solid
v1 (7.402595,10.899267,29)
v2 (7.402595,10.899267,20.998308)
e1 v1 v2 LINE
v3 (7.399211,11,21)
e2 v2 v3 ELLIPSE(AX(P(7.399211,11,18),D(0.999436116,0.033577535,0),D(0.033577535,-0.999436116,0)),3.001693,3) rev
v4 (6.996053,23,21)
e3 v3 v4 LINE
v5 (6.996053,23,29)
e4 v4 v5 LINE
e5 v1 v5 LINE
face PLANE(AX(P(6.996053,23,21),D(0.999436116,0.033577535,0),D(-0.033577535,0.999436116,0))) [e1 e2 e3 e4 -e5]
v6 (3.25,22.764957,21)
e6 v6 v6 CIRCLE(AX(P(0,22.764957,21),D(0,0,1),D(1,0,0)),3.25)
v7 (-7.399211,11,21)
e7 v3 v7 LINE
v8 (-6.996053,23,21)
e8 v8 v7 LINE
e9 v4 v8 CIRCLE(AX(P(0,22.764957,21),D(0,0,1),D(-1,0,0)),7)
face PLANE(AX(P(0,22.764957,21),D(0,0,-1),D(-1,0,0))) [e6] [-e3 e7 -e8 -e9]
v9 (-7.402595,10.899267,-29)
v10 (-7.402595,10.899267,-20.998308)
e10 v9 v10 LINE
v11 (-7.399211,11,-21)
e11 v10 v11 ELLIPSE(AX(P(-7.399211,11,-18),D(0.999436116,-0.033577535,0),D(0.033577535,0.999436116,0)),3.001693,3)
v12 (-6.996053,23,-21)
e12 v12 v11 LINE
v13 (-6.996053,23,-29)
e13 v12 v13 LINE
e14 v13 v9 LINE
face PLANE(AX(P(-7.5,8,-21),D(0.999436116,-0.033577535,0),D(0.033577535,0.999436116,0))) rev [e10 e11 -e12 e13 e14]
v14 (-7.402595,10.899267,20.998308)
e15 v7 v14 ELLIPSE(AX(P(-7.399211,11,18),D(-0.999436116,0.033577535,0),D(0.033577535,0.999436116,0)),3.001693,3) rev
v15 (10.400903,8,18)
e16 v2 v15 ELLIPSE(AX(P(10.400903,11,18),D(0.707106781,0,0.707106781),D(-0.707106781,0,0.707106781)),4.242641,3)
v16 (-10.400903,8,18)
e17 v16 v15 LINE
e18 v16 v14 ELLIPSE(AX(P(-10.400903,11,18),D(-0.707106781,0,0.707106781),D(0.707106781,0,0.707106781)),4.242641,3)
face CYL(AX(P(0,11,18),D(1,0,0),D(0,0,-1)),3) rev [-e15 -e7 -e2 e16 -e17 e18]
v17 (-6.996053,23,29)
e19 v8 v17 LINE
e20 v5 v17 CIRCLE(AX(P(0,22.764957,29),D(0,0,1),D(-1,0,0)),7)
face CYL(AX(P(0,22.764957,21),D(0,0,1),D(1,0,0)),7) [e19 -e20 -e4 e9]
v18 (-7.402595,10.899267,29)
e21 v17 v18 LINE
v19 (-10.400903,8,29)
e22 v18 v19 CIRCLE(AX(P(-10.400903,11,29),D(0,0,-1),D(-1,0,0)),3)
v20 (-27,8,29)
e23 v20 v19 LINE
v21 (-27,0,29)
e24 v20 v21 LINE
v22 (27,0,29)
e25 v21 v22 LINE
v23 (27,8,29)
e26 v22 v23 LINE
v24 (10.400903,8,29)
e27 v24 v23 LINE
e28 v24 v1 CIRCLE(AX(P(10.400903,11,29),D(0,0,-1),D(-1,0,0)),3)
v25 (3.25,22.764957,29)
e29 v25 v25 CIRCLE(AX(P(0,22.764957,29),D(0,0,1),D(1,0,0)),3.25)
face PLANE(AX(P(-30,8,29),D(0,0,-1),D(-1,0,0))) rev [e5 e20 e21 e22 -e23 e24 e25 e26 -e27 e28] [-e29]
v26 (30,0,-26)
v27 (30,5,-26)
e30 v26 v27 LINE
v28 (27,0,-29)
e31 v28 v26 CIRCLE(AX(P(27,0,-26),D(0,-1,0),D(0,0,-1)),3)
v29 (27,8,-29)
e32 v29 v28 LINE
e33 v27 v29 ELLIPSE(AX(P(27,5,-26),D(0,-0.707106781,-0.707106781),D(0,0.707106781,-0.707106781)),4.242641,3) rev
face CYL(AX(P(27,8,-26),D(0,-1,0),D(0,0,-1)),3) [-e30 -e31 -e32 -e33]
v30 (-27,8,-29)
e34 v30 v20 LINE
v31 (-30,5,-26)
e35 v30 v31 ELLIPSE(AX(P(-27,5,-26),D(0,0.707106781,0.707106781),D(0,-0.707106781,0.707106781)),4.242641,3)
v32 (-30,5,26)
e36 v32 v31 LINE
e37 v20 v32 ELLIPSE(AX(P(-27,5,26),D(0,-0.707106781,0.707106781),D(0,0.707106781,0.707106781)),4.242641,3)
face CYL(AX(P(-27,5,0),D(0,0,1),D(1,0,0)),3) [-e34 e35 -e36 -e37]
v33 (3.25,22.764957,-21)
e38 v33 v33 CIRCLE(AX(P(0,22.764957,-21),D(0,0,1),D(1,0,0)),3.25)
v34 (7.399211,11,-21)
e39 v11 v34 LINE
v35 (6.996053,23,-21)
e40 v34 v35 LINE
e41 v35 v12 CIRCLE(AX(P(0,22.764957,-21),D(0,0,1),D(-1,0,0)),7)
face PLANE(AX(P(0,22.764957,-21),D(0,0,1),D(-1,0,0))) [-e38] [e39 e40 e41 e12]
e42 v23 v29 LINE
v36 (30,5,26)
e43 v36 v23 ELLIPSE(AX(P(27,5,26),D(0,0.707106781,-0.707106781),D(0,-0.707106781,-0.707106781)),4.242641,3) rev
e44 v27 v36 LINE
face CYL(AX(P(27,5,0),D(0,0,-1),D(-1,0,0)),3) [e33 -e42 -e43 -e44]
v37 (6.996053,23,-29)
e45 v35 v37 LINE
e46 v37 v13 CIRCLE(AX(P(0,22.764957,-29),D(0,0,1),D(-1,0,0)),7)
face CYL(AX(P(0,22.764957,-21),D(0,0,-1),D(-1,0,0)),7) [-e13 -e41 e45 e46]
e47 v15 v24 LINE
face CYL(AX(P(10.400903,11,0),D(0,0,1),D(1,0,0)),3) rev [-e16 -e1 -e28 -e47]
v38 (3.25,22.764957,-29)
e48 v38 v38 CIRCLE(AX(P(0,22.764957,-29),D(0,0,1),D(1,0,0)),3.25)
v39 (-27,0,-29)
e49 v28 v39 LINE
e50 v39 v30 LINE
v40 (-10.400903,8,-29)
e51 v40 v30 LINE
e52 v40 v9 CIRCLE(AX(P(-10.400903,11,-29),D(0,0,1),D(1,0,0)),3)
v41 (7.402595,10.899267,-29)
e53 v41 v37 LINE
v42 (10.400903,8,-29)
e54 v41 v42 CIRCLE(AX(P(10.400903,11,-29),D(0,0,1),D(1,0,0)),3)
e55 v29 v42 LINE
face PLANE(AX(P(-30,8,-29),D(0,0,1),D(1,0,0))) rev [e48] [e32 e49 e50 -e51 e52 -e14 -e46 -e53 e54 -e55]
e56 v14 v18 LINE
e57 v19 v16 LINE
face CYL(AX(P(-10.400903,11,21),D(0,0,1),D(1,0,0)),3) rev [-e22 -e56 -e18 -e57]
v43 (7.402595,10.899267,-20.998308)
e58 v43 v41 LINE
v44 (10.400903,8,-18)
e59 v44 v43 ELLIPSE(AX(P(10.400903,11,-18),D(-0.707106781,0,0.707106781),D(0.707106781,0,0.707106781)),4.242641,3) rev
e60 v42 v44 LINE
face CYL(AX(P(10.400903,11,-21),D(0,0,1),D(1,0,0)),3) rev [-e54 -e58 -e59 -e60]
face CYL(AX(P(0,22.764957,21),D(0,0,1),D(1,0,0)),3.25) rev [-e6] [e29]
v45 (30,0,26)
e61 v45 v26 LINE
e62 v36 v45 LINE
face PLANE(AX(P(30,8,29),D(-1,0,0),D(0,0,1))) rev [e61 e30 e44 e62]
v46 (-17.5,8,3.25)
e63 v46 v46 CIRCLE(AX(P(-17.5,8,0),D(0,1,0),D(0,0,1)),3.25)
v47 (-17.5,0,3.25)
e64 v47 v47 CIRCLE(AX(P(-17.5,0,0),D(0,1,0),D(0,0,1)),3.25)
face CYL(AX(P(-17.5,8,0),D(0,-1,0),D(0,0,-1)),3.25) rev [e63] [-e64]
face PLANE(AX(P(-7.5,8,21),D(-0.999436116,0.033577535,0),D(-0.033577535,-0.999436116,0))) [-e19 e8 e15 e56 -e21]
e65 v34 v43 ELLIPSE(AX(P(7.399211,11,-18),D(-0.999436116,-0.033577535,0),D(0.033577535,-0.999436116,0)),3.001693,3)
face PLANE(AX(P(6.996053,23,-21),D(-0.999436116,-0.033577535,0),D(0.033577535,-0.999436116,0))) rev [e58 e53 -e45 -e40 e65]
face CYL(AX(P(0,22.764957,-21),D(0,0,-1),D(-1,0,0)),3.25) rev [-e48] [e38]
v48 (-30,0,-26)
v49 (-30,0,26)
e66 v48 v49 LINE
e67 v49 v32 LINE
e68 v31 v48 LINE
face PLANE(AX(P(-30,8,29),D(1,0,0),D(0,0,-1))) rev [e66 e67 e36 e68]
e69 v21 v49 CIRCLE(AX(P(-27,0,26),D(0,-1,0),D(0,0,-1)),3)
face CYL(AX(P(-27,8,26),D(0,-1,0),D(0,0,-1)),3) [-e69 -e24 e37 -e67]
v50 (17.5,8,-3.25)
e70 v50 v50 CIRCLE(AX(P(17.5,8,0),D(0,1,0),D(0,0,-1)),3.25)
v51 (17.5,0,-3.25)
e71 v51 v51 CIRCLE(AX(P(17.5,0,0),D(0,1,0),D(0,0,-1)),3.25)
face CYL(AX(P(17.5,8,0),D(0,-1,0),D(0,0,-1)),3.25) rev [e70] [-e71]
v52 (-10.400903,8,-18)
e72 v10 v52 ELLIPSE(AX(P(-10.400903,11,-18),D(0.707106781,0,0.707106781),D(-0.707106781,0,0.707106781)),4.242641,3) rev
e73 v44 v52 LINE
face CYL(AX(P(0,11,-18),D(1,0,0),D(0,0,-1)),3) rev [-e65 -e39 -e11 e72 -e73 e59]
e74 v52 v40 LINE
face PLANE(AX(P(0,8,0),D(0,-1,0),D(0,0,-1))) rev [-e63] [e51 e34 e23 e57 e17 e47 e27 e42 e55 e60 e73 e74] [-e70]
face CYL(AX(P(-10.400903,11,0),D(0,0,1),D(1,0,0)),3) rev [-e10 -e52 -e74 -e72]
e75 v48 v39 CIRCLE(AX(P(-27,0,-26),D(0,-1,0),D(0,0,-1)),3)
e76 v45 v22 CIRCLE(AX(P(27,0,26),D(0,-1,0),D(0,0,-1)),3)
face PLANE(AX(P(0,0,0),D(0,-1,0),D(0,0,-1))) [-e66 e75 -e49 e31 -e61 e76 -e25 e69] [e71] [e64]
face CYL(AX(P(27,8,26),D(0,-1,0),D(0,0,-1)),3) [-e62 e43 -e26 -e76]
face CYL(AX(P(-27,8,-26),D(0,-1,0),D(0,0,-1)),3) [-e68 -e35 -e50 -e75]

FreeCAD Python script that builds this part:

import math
import FreeCAD as App
import Part
import Sketcher


def edges_at(feature, points):
    """Names of the edges that pass closest to the given points."""
    edges = feature.Shape.Edges
    near = lambda p: min(range(len(edges)), key=lambda i: edges[i].distToShape(Part.Vertex(*p))[0])
    return sorted({f"Edge{near(p) + 1}" for p in points})


def add_polygon(sketch, points):
    """Adds a closed chain of lines whose ends are joined by coincident constraints."""
    first, n = sketch.GeometryCount, len(points)
    for a, b in zip(points, points[1:] + points[:1]):
        sketch.addGeometry(Part.LineSegment(App.Vector(*a, 0), App.Vector(*b, 0)), False)
    for i in range(n):
        sketch.addConstraint(Sketcher.Constraint("Coincident", first + i, 2, first + (i + 1) % n, 1))

doc = App.newDocument("Part")
body = doc.addObject("PartDesign::Body", "Body")

# Sketch on XZ plane
sketch1 = body.newObject("Sketcher::SketchObject", "Sketch")
sketch1.AttachmentSupport = (doc.getObject("XZ_Plane"), [""])
sketch1.MapMode = "FlatFace"
add_polygon(sketch1, [(-30, -29), (-30, 29), (30, 29), (30, -29)])  # lines 0-3
sketch1.addGeometry(Part.Circle(App.Vector(-17.5, 0, 0), App.Vector(0, 0, 1), 3.2), False)  # 4
sketch1.addGeometry(Part.Circle(App.Vector(17.5, 0, 0), App.Vector(0, 0, 1), 3.2), False)  # 5
sketch1.addConstraint([
    Sketcher.Constraint("Vertical", 0),
    Sketcher.Constraint("Horizontal", 1),
    Sketcher.Constraint("Vertical", 2),
    Sketcher.Constraint("Horizontal", 3),
    Sketcher.Constraint("Equal", 4, 5),
    Sketcher.Constraint("Symmetric", 4, 3, 5, 3, -1, 1),
    Sketcher.Constraint("Symmetric", 0, 2, 2, 2, -1, 1),
    Sketcher.Constraint("PointOnObject", 4, 3, -1),
    Sketcher.Constraint("Diameter", 4, 6.5),
    Sketcher.Constraint("DistanceX", 1, 1, 1, 2, 60.0),
    Sketcher.Constraint("DistanceY", 0, 1, 0, 2, 58.0),
    Sketcher.Constraint("DistanceX", 4, 3, 5, 3, 35.0),
])
pad1 = body.newObject("PartDesign::Pad", "Pad")
pad1.Profile = sketch1
pad1.Length = 8
pad1.Reversed = True

# Sketch on XY plane
sketch2 = body.newObject("Sketcher::SketchObject", "Sketch001")
sketch2.AttachmentSupport = (doc.getObject("XY_Plane"), [""])
sketch2.MapMode = "FlatFace"
sketch2.AttachmentOffset = App.Placement(App.Vector(0, 0, 29), App.Rotation())
sketch2.addGeometry([
    Part.LineSegment(App.Vector(-7, 23, 0), App.Vector(-7.5, 8, 0)),  # 0
    Part.LineSegment(App.Vector(-7.5, 8, 0), App.Vector(7.5, 8, 0)),  # 1
    Part.LineSegment(App.Vector(7.5, 8, 0), App.Vector(7, 23, 0)),  # 2
    Part.ArcOfCircle(Part.Circle(App.Vector(0, 22.8, 0), App.Vector(0, 0, 1), 7), math.radians(2), math.radians(178)),  # 3
    Part.Circle(App.Vector(0, 22.8, 0), App.Vector(0, 0, 1), 3.2),  # 4
], False)
sketch2.addConstraint([
    Sketcher.Constraint("Coincident", 0, 2, 1, 1),
    Sketcher.Constraint("Coincident", 1, 2, 2, 1),
    Sketcher.Constraint("Tangent", 2, 2, 3, 1),
    Sketcher.Constraint("Tangent", 3, 2, 0, 1),
    Sketcher.Constraint("Horizontal", 1),
    Sketcher.Constraint("Coincident", 4, 3, 3, 3),
    Sketcher.Constraint("Symmetric", 2, 2, 3, 2, -2),
    Sketcher.Constraint("Radius", 3, 7.0),
    Sketcher.Constraint("Diameter", 4, 6.5),
    Sketcher.Constraint("DistanceX", 1, 1, 1, 2, 15.0),
    Sketcher.Constraint("DistanceY", -1, 1, 0, 2, 8.0),
    Sketcher.Constraint("DistanceY", -1, 1, 2, 2, 23.0),
])
pad2 = body.newObject("PartDesign::Pad", "Pad001")
pad2.Profile = sketch2
pad2.Length = 8
pad2.Reversed = True
doc.recompute()

mirrored = body.newObject("PartDesign::Mirrored", "Mirrored")
mirrored.Originals = [pad2]
mirrored.MirrorPlane = (doc.getObject("XY_Plane"), [""])
body.Tip = mirrored
doc.recompute()

fillet = body.newObject("PartDesign::Fillet", "Fillet")
fillet.Base = (mirrored, edges_at(mirrored, [
    (-30, 8, 0),
    (0, 8, 21),
    (7.5, 8, 25),
    (-7.5, 8, 25),
    (0, 8, -21),
    (-7.5, 8, -25),
    (7.5, 8, -25),
    (30, 8, 0),
    (30, 4, 29),
    (-30, 4, 29),
    (-30, 4, -29),
    (30, 4, -29),
]))
fillet.Radius = 3

doc.recompute()
